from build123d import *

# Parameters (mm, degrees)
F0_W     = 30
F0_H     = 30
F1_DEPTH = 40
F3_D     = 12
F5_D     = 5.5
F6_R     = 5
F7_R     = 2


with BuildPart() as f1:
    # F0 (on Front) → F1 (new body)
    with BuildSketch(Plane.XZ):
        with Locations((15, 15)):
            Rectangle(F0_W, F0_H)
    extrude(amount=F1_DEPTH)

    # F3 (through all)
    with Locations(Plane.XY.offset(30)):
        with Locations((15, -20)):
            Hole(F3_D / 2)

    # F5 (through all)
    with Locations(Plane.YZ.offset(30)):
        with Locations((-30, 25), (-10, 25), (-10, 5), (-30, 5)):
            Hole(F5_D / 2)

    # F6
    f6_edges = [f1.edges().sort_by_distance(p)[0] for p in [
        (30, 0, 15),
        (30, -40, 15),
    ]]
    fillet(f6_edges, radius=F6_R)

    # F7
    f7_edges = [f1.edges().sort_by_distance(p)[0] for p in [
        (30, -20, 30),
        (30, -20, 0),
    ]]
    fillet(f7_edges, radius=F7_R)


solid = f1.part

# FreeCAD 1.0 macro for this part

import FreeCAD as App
import Part
import Sketcher
from FreeCAD import Vector
Q = App.Units.Quantity


def edges_at(feature, points):
    """Names of the edges that pass closest to the given points."""
    edges = feature.Shape.Edges
    near = lambda p: min(range(len(edges)), key=lambda i: edges[i].distToShape(Part.Vertex(*p))[0])
    return sorted({f"Edge{near(p) + 1}" for p in points})

doc = App.newDocument("Part")
body = doc.addObject("PartDesign::Body", "Body")

# Sketch on XZ plane
sketch1 = body.newObject("Sketcher::SketchObject", "Sketch")
sketch1.AttachmentSupport = (doc.getObject("XZ_Plane"), [""])
sketch1.MapMode = "FlatFace"
sketch1.addGeometry([
    Part.LineSegment(Vector(0, 30, 0), Vector(0, 0, 0)),
    Part.LineSegment(Vector(0, 0, 0), Vector(30, 0, 0)),
    Part.LineSegment(Vector(30, 0, 0), Vector(30, 30, 0)),
    Part.LineSegment(Vector(30, 30, 0), Vector(0, 30, 0)),
], False)
sketch1.addConstraint([
    Sketcher.Constraint("Coincident", 0, 2, 1, 1),
    Sketcher.Constraint("Coincident", 1, 2, 2, 1),
    Sketcher.Constraint("Coincident", 2, 2, 3, 1),
    Sketcher.Constraint("Coincident", 3, 2, 0, 1),
    Sketcher.Constraint("Vertical", 0),
    Sketcher.Constraint("Horizontal", 1),
    Sketcher.Constraint("Vertical", 2),
    Sketcher.Constraint("Horizontal", 3),
    Sketcher.Constraint("Coincident", 0, 2, -1, 1),
    Sketcher.Constraint("Equal", 3, 0),
    Sketcher.Constraint("DistanceX", 1, 1, 1, 2, Q("30 mm")),
])
pad1 = body.newObject("PartDesign::Pad", "Pad")
pad1.Profile = sketch1
pad1.Length = 40

# Sketch on XY plane
sketch2 = body.newObject("Sketcher::SketchObject", "Sketch001")
sketch2.AttachmentSupport = (doc.getObject("XY_Plane"), [""])
sketch2.MapMode = "FlatFace"
sketch2.AttachmentOffset = App.Placement(Vector(0, 0, 30), App.Rotation())
sketch2.addGeometry(Part.Circle(Vector(15, -20, 0), Vector(0, 0, 1), 6), False)
sketch2.addConstraint([
    Sketcher.Constraint("Diameter", 0, Q("12 mm")),
    Sketcher.Constraint("DistanceX", -1, 1, 0, 3, Q("15 mm")),
    Sketcher.Constraint("DistanceY", 0, 3, -1, 1, Q("20 mm")),
])
doc.recompute()
hole = body.newObject("PartDesign::Hole", "Hole")
hole.Profile = sketch2
hole.ThreadType = "None"
hole.Diameter = 12
hole.DepthType = "ThroughAll"

# Sketch on YZ plane
sketch3 = body.newObject("Sketcher::SketchObject", "Sketch002")
sketch3.AttachmentSupport = (doc.getObject("YZ_Plane"), [""])
sketch3.MapMode = "FlatFace"
sketch3.AttachmentOffset = App.Placement(Vector(0, 0, 30), App.Rotation())
sketch3.addGeometry([
    Part.Circle(Vector(-30, 25, 0), Vector(0, 0, 1), 2.8),
    Part.Circle(Vector(-10, 25, 0), Vector(0, 0, 1), 2.8),
    Part.Circle(Vector(-10, 5, 0), Vector(0, 0, 1), 2.8),
    Part.Circle(Vector(-30, 5, 0), Vector(0, 0, 1), 2.8),
], False)
sketch3.addConstraint([
    Sketcher.Constraint("Equal", 0, 1),
    Sketcher.Constraint("Equal", 1, 2),
    Sketcher.Constraint("Equal", 2, 3),
    Sketcher.Constraint("Horizontal", 0, 3, 1, 3),
    Sketcher.Constraint("Horizontal", 2, 3, 3, 3),
    Sketcher.Constraint("Vertical", 1, 3, 2, 3),
    Sketcher.Constraint("Vertical", 0, 3, 3, 3),
    Sketcher.Constraint("Diameter", 0, Q("5.5 mm")),
    Sketcher.Constraint("DistanceX", 0, 3, -1, 1, Q("30 mm")),
    Sketcher.Constraint("DistanceY", -1, 1, 0, 3, Q("25 mm")),
    Sketcher.Constraint("DistanceX", 1, 3, -1, 1, Q("10 mm")),
    Sketcher.Constraint("DistanceY", -1, 1, 2, 3, Q("5 mm")),
])
doc.recompute()
hole2 = body.newObject("PartDesign::Hole", "Hole001")
hole2.Profile = sketch3
hole2.ThreadType = "None"
hole2.Diameter = 5.5
hole2.DepthType = "ThroughAll"
doc.recompute()

fillet = body.newObject("PartDesign::Fillet", "Fillet")
fillet.Base = (hole2, edges_at(hole2, [(30, 0, 15), (30, -40, 15)]))
fillet.Radius = 5
doc.recompute()

fillet2 = body.newObject("PartDesign::Fillet", "Fillet001")
fillet2.Base = (fillet, edges_at(fillet, [(30, -20, 30), (30, -20, 0)]))
fillet2.Radius = 2

doc.recompute()
